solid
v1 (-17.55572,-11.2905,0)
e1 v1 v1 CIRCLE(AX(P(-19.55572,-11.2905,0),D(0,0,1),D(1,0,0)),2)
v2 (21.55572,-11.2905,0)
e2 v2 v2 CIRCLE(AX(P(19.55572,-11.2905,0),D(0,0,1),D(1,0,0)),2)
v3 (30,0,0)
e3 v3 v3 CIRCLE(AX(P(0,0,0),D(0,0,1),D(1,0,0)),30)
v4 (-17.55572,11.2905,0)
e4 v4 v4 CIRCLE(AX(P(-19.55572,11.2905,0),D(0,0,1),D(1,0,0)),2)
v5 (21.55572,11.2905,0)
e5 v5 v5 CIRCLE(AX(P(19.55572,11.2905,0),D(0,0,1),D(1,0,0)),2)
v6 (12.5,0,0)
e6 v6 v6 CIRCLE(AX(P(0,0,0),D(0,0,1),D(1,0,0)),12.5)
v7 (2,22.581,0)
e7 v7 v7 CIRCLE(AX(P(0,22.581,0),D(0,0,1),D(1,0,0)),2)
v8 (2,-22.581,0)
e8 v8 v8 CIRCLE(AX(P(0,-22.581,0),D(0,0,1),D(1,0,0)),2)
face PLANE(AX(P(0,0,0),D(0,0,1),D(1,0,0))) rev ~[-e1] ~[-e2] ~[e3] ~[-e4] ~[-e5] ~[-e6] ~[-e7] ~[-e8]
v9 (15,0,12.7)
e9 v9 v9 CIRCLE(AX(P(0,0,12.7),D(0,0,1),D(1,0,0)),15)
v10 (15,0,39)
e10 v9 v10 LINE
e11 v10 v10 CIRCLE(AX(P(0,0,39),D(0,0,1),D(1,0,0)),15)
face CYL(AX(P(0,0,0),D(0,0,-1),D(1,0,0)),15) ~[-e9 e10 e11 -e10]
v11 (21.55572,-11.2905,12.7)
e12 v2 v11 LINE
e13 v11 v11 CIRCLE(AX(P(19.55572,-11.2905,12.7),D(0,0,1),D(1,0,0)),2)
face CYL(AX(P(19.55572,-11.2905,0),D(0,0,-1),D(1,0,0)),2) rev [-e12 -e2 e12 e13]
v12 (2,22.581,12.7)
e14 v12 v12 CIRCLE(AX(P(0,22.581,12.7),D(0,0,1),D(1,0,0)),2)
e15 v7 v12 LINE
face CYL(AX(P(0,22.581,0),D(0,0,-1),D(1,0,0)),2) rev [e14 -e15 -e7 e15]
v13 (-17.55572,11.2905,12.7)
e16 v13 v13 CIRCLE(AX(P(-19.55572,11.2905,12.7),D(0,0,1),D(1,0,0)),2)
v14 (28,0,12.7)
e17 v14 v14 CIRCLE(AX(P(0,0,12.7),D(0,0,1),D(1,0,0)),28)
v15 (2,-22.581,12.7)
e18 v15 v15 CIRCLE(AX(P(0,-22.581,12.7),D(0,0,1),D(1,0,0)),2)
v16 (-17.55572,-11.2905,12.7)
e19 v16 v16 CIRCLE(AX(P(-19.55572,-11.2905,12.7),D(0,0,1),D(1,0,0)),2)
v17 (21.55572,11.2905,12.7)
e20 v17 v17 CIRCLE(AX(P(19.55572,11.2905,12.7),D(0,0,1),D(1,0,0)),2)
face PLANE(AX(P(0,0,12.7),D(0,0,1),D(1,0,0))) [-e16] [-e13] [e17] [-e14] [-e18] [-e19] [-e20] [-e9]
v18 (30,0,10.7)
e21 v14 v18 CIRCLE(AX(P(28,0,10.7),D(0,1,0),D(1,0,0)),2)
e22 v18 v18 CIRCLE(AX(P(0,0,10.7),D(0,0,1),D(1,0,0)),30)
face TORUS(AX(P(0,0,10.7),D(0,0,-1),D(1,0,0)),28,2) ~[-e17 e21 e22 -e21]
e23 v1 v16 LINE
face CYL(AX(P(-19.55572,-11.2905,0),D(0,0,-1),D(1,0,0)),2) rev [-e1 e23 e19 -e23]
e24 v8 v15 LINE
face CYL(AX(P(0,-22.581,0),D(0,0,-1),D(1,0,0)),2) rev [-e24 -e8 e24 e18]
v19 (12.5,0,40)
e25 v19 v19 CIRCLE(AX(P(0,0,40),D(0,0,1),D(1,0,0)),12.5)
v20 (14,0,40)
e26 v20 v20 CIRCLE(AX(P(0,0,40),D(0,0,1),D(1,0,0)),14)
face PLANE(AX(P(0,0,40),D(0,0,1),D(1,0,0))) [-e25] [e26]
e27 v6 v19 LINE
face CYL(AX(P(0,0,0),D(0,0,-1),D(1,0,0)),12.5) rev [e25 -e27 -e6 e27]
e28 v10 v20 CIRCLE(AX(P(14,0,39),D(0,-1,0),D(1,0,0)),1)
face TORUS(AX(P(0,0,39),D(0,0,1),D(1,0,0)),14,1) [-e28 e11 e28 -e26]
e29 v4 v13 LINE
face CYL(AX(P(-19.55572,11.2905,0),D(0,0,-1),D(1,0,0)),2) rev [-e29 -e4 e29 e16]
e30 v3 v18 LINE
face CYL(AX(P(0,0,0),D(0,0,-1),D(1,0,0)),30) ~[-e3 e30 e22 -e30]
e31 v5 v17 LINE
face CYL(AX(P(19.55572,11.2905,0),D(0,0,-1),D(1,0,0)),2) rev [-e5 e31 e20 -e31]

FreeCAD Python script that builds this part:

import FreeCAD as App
import Part
import Sketcher

V = App.Vector
Q = App.Units.Quantity


def edges_at(feature, points):
    """Names of the edges that pass closest to the given points."""
    edges = feature.Shape.Edges
    near = lambda p: min(range(len(edges)), key=lambda i: edges[i].distToShape(Part.Vertex(*p))[0])
    return sorted({f"Edge{near(p) + 1}" for p in points})

doc = App.newDocument("Part")
body = doc.addObject("PartDesign::Body", "Body")

# Sketch on XY plane
sketch1 = doc.addObject("Sketcher::SketchObject", "Sketch")
body.addObject(sketch1)
sketch1.AttachmentSupport = (doc.XY_Plane, [""])
sketch1.MapMode = "FlatFace"
sketch1.addGeometry(Part.Circle(V(0, 0, 0), V(0, 0, 1), 30), False)
sketch1.addGeometry(Part.Circle(V(-19.6, -11.3, 0), V(0, 0, 1), 2), False)
sketch1.addGeometry(Part.Circle(V(0, -22.6, 0), V(0, 0, 1), 2), False)
sketch1.addGeometry(Part.Circle(V(19.6, -11.3, 0), V(0, 0, 1), 2), False)
sketch1.addGeometry(Part.Circle(V(-19.6, 11.3, 0), V(0, 0, 1), 2), False)
sketch1.addGeometry(Part.Circle(V(0, 0, 0), V(0, 0, 1), 15), False)
sketch1.addGeometry(Part.Circle(V(19.6, 11.3, 0), V(0, 0, 1), 2), False)
sketch1.addGeometry(Part.Circle(V(0, 22.6, 0), V(0, 0, 1), 2), False)
sketch1.addConstraint(Sketcher.Constraint("Coincident", 0, 3, -1, 1))
sketch1.addConstraint(Sketcher.Constraint("Coincident", 5, 3, -1, 1))
sketch1.addConstraint(Sketcher.Constraint("Equal", 1, 2))
sketch1.addConstraint(Sketcher.Constraint("Equal", 2, 3))
sketch1.addConstraint(Sketcher.Constraint("Equal", 3, 4))
sketch1.addConstraint(Sketcher.Constraint("Equal", 4, 6))
sketch1.addConstraint(Sketcher.Constraint("Equal", 6, 7))
sketch1.addConstraint(Sketcher.Constraint("Symmetric", 3, 3, 4, 3, -1, 1))
sketch1.addConstraint(Sketcher.Constraint("Symmetric", 1, 3, 6, 3, -1, 1))
sketch1.addConstraint(Sketcher.Constraint("Symmetric", 2, 3, 7, 3, -1, 1))
sketch1.addConstraint(Sketcher.Constraint("Symmetric", 1, 3, 3, 3, -2))
sketch1.addConstraint(Sketcher.Constraint("PointOnObject", 2, 3, -2))
sketch1.addConstraint(Sketcher.Constraint("Diameter", 0, Q("60 mm")))
sketch1.addConstraint(Sketcher.Constraint("Diameter", 1, Q("4 mm")))
sketch1.addConstraint(Sketcher.Constraint("Diameter", 5, Q("30 mm")))
sketch1.addConstraint(Sketcher.Constraint("DistanceY", 2, 3, -1, 1, Q("22.581 mm")))
sketch1.addConstraint(Sketcher.Constraint("DistanceY", 1, 3, 4, 3, Q("22.581 mm")))
sketch1.addConstraint(Sketcher.Constraint("DistanceX", 1, 3, -1, 1, Q("19.55572 mm")))
pad1 = doc.addObject("PartDesign::Pad", "Pad")
body.addObject(pad1)
pad1.Profile = sketch1
pad1.Length = 12.7

# Sketch on XY plane
sketch2 = doc.addObject("Sketcher::SketchObject", "Sketch001")
body.addObject(sketch2)
sketch2.AttachmentSupport = (doc.XY_Plane, [""])
sketch2.MapMode = "FlatFace"
sketch2.addGeometry(Part.Circle(V(0, 0, 0), V(0, 0, 1), 15), False)
sketch2.addGeometry(Part.Circle(V(0, 0, 0), V(0, 0, 1), 12), False)
sketch2.addConstraint(Sketcher.Constraint("Coincident", 0, 3, -1, 1))
sketch2.addConstraint(Sketcher.Constraint("Coincident", 1, 3, -1, 1))
sketch2.addConstraint(Sketcher.Constraint("Diameter", 0, Q("30 mm")))
sketch2.addConstraint(Sketcher.Constraint("Diameter", 1, Q("25 mm")))
pad2 = doc.addObject("PartDesign::Pad", "Pad001")
body.addObject(pad2)
pad2.Profile = sketch2
pad2.Length = 40
doc.recompute()

fillet = doc.addObject("PartDesign::Fillet", "Fillet")
body.addObject(fillet)
fillet.Base = (pad2, edges_at(pad2, [(-15, 0, 40)]))
fillet.Radius = 1
doc.recompute()

fillet2 = doc.addObject("PartDesign::Fillet", "Fillet001")
body.addObject(fillet2)
fillet2.Base = (fillet, edges_at(fillet, [(-30, 0, 12.7)]))
fillet2.Radius = 2

doc.recompute()
